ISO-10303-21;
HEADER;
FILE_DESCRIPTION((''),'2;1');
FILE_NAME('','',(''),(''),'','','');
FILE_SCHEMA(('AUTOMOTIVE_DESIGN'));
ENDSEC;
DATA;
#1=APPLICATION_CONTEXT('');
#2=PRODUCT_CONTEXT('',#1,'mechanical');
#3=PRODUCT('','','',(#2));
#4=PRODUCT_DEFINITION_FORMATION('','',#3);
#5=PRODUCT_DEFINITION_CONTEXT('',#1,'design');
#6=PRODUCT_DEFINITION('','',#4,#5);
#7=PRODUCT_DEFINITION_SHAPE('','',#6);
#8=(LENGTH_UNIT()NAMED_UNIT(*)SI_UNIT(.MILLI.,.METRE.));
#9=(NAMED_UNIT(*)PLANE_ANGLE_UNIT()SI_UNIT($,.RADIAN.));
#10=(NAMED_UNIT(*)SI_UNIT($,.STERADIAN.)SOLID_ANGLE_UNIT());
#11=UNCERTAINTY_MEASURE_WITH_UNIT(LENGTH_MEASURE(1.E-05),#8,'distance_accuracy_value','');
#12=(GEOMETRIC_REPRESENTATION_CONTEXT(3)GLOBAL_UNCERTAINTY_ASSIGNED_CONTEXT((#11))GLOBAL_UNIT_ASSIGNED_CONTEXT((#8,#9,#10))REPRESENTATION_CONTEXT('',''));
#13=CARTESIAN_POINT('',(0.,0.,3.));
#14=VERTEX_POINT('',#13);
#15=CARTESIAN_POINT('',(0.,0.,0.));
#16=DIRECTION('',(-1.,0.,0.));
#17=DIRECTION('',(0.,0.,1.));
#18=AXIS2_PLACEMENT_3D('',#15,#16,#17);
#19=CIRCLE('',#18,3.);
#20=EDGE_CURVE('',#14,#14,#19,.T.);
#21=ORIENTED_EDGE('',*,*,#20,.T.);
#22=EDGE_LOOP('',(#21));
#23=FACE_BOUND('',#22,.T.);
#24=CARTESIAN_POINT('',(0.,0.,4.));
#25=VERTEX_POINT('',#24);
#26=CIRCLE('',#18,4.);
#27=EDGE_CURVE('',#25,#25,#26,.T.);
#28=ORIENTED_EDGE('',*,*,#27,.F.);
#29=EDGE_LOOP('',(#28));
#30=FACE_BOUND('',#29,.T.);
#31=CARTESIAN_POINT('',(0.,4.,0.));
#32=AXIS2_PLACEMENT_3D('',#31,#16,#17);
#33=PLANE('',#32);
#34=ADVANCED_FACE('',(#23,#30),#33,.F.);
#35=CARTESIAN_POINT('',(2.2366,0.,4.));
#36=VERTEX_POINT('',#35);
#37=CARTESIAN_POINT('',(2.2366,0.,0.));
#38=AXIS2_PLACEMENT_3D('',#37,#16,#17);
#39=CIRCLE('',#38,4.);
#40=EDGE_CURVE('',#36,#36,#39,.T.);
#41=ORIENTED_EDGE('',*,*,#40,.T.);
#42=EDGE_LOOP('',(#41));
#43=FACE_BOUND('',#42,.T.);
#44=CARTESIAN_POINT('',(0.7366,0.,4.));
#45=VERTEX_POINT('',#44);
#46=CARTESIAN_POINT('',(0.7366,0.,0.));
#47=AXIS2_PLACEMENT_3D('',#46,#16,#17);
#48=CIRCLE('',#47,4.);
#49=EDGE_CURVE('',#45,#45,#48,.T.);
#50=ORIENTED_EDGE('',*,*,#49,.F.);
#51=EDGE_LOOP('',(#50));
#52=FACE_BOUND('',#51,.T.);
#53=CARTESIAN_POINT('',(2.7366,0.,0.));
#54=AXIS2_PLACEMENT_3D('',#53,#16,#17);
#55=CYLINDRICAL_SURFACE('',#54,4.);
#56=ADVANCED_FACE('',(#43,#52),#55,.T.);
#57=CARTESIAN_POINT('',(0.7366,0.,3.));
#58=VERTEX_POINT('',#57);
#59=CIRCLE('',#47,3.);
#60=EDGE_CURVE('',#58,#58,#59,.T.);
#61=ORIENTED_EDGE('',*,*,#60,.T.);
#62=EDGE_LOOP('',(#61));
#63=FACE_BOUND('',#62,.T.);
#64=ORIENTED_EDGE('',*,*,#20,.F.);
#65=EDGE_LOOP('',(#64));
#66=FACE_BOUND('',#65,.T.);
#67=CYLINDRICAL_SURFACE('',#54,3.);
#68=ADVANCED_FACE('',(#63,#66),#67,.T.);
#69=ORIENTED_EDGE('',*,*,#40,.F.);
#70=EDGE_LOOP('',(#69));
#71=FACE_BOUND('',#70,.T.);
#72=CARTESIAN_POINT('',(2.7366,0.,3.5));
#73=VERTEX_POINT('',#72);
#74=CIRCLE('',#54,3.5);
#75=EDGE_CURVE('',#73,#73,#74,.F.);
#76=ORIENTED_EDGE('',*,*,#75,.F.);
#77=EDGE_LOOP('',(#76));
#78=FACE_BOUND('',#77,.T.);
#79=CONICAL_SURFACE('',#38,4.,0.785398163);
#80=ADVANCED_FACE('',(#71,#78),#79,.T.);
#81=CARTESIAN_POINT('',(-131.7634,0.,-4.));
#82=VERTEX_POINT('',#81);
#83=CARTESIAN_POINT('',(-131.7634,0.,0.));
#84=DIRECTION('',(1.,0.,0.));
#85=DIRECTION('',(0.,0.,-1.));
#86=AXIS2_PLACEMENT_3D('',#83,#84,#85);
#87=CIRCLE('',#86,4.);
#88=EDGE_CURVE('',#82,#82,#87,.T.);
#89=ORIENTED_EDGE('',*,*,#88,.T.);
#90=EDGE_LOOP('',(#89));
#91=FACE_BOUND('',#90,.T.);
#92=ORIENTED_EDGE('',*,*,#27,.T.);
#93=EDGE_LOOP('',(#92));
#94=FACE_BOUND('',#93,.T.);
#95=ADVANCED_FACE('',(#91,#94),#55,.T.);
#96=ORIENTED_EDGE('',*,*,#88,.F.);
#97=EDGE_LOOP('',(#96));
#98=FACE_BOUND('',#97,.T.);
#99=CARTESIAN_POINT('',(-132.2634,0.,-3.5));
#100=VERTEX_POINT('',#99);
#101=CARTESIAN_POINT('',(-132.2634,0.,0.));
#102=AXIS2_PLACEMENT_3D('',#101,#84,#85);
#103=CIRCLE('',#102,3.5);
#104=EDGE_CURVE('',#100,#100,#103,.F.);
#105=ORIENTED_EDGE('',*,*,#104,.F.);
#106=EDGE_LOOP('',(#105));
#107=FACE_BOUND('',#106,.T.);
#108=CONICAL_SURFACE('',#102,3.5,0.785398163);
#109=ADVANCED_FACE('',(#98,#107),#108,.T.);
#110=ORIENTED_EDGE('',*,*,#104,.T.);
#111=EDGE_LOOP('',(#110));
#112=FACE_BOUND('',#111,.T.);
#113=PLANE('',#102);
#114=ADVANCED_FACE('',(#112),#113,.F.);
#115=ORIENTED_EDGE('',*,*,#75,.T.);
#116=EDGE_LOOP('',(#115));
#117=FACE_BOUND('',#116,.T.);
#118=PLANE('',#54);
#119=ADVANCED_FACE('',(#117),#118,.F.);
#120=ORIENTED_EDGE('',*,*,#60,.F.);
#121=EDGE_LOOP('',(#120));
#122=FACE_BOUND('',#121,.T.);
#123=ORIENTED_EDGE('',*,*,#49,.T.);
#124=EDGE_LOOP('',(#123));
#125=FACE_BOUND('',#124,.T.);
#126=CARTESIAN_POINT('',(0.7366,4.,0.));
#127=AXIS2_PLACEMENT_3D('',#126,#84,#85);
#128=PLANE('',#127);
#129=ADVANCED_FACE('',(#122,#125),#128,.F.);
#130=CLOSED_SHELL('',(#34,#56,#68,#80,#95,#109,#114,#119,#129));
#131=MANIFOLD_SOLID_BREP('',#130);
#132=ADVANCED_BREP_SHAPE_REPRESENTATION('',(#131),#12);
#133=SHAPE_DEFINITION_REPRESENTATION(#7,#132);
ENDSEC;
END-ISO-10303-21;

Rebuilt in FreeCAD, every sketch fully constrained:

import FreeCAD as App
import Part
import Sketcher
Q = App.Units.Quantity


def edges_at(feature, points):
    """Names of the edges that pass closest to the given points."""
    edges = feature.Shape.Edges
    near = lambda p: min(range(len(edges)), key=lambda i: edges[i].distToShape(Part.Vertex(*p))[0])
    return sorted({f"Edge{near(p) + 1}" for p in points})


def add_polygon(sketch, points):
    """Adds a closed chain of lines whose ends are joined by coincident constraints."""
    first, n = sketch.GeometryCount, len(points)
    for a, b in zip(points, points[1:] + points[:1]):
        sketch.addGeometry(Part.LineSegment(App.Vector(*a, 0), App.Vector(*b, 0)), False)
    for i in range(n):
        sketch.addConstraint(Sketcher.Constraint("Coincident", first + i, 2, first + (i + 1) % n, 1))

doc = App.newDocument("Part")
params = doc.addObject("Spreadsheet::Sheet", "Params")
for row, (alias, value) in enumerate([
    ("sketch1_width", "2 mm"),
    ("sketch1_width2", "135 mm"),
    ("sketch1_height", "1 mm"),
    ("sketch1_height2", "4 mm"),
    ("revolution_angle", "360 deg"),
    ("chamfer_size", "0.5 mm"),
], start=1):
    params.set(f"A{row}", alias)
    params.set(f"B{row}", "=" + value)
    params.setAlias(f"B{row}", alias)

body = doc.addObject("PartDesign::Body", "Body")

sketch1 = body.newObject("Sketcher::SketchObject", "Sketch")
sketch1.AttachmentSupport = (doc.getObject("XY_Plane"), [""])
sketch1.MapMode = "FlatFace"
add_polygon(sketch1, [(2.7, 4), (0.7, 4), (0.7, 3), (0, 3), (0, 4), (-132.3, 4), (-132.3, 0), (2.7, 0)])
sketch1.addConstraint([
    Sketcher.Constraint("Horizontal", 0),
    Sketcher.Constraint("Vertical", 1),
    Sketcher.Constraint("Horizontal", 2),
    Sketcher.Constraint("Vertical", 3),
    Sketcher.Constraint("Horizontal", 4),
    Sketcher.Constraint("Vertical", 5),
    Sketcher.Constraint("Horizontal", 6),
    Sketcher.Constraint("Vertical", 7),
    Sketcher.Constraint("PointOnObject", 2, 2, -2),
    Sketcher.Constraint("PointOnObject", 5, 2, -1),
    Sketcher.Constraint("Horizontal", 0, 2, 3, 2),
    Sketcher.Constraint("DistanceX", 0, 2, 0, 1, Q("2 mm")),
    Sketcher.Constraint("DistanceX", 6, 1, 6, 2, Q("135 mm")),
    Sketcher.Constraint("DistanceY", 1, 2, 1, 1, Q("1 mm")),
    Sketcher.Constraint("DistanceY", 5, 2, 5, 1, Q("4 mm")),
    Sketcher.Constraint("DistanceX", 2, 2, 2, 1, Q("0.7366 mm")),
])
sketch1.setExpression("Constraints[19]", "Params.sketch1_width")
sketch1.setExpression("Constraints[20]", "Params.sketch1_width2")
sketch1.setExpression("Constraints[21]", "Params.sketch1_height")
sketch1.setExpression("Constraints[22]", "Params.sketch1_height2")
revolution = body.newObject("PartDesign::Revolution", "Revolution")
revolution.Profile = sketch1
revolution.ReferenceAxis = (sketch1, ["H_Axis"])
revolution.setExpression("Angle", "Params.revolution_angle")
doc.recompute()

chamfer = body.newObject("PartDesign::Chamfer", "Chamfer")
chamfer.Base = (revolution, edges_at(revolution, [(2.737, -4, 0), (-132.263, -4, 0)]))
chamfer.setExpression("Size", "Params.chamfer_size")

doc.recompute()
